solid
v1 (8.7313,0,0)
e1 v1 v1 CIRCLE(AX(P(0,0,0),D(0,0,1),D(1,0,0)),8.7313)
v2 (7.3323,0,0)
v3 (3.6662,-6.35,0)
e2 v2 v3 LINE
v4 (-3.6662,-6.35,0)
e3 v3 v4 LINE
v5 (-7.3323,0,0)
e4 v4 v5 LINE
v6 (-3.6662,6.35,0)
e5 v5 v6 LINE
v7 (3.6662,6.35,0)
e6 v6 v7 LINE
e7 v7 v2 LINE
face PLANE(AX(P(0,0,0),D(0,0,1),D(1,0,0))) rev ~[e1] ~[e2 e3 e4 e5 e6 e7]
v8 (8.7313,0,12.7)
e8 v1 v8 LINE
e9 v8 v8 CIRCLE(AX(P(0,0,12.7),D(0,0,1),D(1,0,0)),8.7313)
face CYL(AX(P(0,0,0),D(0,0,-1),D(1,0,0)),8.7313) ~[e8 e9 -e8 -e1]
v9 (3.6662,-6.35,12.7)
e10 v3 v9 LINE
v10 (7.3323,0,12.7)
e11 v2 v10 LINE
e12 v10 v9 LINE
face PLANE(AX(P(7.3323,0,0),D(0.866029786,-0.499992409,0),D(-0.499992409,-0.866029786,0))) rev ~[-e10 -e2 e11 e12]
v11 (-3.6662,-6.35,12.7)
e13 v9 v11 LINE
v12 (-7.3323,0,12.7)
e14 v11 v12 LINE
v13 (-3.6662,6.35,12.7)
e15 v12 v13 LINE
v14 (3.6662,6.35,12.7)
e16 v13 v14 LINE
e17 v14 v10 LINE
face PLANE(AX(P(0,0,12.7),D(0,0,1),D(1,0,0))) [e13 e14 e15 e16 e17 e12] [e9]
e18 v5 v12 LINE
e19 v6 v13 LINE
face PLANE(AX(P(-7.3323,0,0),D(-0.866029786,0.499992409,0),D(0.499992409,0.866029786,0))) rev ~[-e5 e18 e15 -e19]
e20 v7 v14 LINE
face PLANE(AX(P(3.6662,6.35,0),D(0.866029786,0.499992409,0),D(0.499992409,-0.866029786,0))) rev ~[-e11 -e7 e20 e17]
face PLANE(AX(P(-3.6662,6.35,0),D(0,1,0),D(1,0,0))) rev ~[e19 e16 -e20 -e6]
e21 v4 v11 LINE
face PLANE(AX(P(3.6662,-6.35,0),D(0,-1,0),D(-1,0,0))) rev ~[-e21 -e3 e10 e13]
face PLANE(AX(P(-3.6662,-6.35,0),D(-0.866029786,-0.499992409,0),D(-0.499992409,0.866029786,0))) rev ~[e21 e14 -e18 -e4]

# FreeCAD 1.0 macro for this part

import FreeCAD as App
import Part
import Sketcher

V = App.Vector
Q = App.Units.Quantity


def add_polygon(sketch, points):
    """Adds a closed chain of lines whose ends are joined by coincident constraints."""
    first, n = sketch.GeometryCount, len(points)
    for a, b in zip(points, points[1:] + points[:1]):
        sketch.addGeometry(Part.LineSegment(App.Vector(*a, 0), App.Vector(*b, 0)), False)
    for i in range(n):
        sketch.addConstraint(Sketcher.Constraint("Coincident", first + i, 2, first + (i + 1) % n, 1))

doc = App.newDocument("Part")
body = doc.addObject("PartDesign::Body", "Body")

# Sketch on XY plane
sketch1 = doc.addObject("Sketcher::SketchObject", "Sketch")
body.addObject(sketch1)
sketch1.AttachmentSupport = (doc.XY_Plane, [""])
sketch1.MapMode = "FlatFace"
sketch1.addGeometry(Part.Circle(V(0, 0, 0), V(0, 0, 1), 9), False)  # 0
add_polygon(sketch1, [(-4, -6), (-7, 0), (-4, 6), (4, 6), (7, 0), (4, -6)])  # lines 1-6
sketch1.addConstraint([
    Sketcher.Constraint("Horizontal", 3),
    Sketcher.Constraint("Horizontal", 6),
    Sketcher.Constraint("Coincident", 0, 3, -1, 1),
    Sketcher.Constraint("Symmetric", 1, 2, 4, 2, -1, 1),
    Sketcher.Constraint("Symmetric", 2, 2, 5, 2, -1, 1),
    Sketcher.Constraint("PointOnObject", 1, 2, -1),
    Sketcher.Constraint("Parallel", 1, 4),
    Sketcher.Constraint("Vertical", 3, 2, 5, 2),
    Sketcher.Constraint("Diameter", 0, Q("0.6875 in")),
    Sketcher.Constraint("DistanceY", 5, 2, 3, 2, Q("0.5 in")),
    Sketcher.Constraint("Angle", 1, Q("119.9995 deg")),
    Sketcher.Constraint("DistanceX", 1, 2, 3, 2, Q("0.433 in")),
])
pad1 = doc.addObject("PartDesign::Pad", "Pad")
body.addObject(pad1)
pad1.Profile = sketch1
pad1.Length = Q("0.5 in")

doc.recompute()
